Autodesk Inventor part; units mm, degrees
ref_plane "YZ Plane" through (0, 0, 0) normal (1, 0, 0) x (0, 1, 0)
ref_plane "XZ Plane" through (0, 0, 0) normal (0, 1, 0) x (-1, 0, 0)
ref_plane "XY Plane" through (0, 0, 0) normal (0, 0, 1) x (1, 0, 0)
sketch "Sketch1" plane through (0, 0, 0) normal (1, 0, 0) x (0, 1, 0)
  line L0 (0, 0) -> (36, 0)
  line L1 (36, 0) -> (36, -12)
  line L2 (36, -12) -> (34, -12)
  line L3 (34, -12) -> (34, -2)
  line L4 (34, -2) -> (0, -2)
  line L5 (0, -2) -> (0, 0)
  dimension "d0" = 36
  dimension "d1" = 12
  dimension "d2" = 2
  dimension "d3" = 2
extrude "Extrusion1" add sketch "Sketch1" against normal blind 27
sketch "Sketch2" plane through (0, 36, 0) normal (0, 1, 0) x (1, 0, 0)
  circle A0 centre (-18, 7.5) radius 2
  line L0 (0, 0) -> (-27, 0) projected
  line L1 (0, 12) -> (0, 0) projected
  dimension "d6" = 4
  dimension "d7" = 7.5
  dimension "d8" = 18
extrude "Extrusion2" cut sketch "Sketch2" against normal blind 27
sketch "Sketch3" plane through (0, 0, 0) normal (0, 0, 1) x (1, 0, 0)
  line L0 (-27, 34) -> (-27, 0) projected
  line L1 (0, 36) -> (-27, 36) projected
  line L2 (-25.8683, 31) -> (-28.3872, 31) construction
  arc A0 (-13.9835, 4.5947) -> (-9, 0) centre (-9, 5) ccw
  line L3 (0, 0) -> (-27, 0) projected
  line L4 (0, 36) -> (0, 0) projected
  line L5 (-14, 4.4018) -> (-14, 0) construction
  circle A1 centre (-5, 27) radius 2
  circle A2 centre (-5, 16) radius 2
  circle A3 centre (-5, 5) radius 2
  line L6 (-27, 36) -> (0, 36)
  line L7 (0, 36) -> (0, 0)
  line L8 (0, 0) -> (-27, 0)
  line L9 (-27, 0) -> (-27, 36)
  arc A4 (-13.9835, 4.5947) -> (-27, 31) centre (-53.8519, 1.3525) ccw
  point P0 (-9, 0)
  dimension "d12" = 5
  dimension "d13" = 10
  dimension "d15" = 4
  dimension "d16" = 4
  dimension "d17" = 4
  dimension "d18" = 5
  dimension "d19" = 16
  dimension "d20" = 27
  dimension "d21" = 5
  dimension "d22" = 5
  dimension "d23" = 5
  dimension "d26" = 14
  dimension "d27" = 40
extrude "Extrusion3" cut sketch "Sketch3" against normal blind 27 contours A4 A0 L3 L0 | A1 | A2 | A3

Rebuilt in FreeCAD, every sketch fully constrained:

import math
import FreeCAD as App
import Part
import Sketcher

V = App.Vector

doc = App.newDocument("Part")
body = doc.addObject("PartDesign::Body", "Body")

# Sketch on YZ plane
sketch1 = body.newObject("Sketcher::SketchObject", "Sketch")
sketch1.AttachmentSupport = (doc.getObject("YZ_Plane"), [""])
sketch1.MapMode = "FlatFace"
sketch1.addGeometry([
    Part.LineSegment(V(36, 0, 0), V(0, 0, 0)),  # 0
    Part.LineSegment(V(0, 0, 0), V(0, -2, 0)),  # 1
    Part.LineSegment(V(0, -2, 0), V(34, -2, 0)),  # 2
    Part.LineSegment(V(34, -2, 0), V(34, -12, 0)),  # 3
    Part.LineSegment(V(34, -12, 0), V(36, -12, 0)),  # 4
    Part.LineSegment(V(36, -12, 0), V(36, 0, 0)),  # 5
], False)
sketch1.addConstraint([
    Sketcher.Constraint("Coincident", 0, 2, 1, 1),
    Sketcher.Constraint("Coincident", 1, 2, 2, 1),
    Sketcher.Constraint("Coincident", 2, 2, 3, 1),
    Sketcher.Constraint("Coincident", 3, 2, 4, 1),
    Sketcher.Constraint("Coincident", 4, 2, 5, 1),
    Sketcher.Constraint("Coincident", 5, 2, 0, 1),
    Sketcher.Constraint("Horizontal", 0),
    Sketcher.Constraint("Vertical", 1),
    Sketcher.Constraint("Horizontal", 2),
    Sketcher.Constraint("Vertical", 3),
    Sketcher.Constraint("Horizontal", 4),
    Sketcher.Constraint("Vertical", 5),
    Sketcher.Constraint("Coincident", 0, 2, -1, 1),
    Sketcher.Constraint("Equal", 4, 1),
    Sketcher.Constraint("DistanceX", 0, 2, 0, 1, 36.0),
    Sketcher.Constraint("DistanceX", 4, 1, 4, 2, 2.0),
    Sketcher.Constraint("DistanceY", 5, 1, 5, 2, 12.0),
])
pad1 = body.newObject("PartDesign::Pad", "Pad")
pad1.Profile = sketch1
pad1.Length = 27
pad1.Reversed = True

# Sketch on XZ plane
sketch2 = body.newObject("Sketcher::SketchObject", "Sketch001")
sketch2.AttachmentSupport = (doc.getObject("XZ_Plane"), [""])
sketch2.MapMode = "FlatFace"
sketch2.AttachmentOffset = App.Placement(V(0, 0, -36), App.Rotation())
sketch2.addGeometry(Part.Circle(V(-18, -7.5, 0), V(0, 0, 1), 2), False)
sketch2.addConstraint([
    Sketcher.Constraint("Diameter", 0, 4.0),
    Sketcher.Constraint("DistanceX", 0, 3, -1, 1, 18.0),
    Sketcher.Constraint("DistanceY", 0, 3, -1, 1, 7.5),
])
pocket1 = body.newObject("PartDesign::Pocket", "Pocket")
pocket1.Profile = sketch2
pocket1.Length = 27
pocket1.Reversed = True

# Sketch on XY plane
sketch3 = body.newObject("Sketcher::SketchObject", "Sketch002")
sketch3.AttachmentSupport = (doc.getObject("XY_Plane"), [""])
sketch3.MapMode = "FlatFace"
sketch3.addGeometry([
    Part.ArcOfCircle(Part.Circle(V(-53.9, 1.4, 0), V(0, 0, 1), 40), math.radians(5), math.radians(48)),  # 0
    Part.LineSegment(V(-27, 31, 0), V(-27, 0, 0)),  # 1
    Part.LineSegment(V(-27, 0, 0), V(-9, 0, 0)),  # 2
    Part.ArcOfCircle(Part.Circle(V(-9, 5, 0), V(0, 0, 1), 5), math.radians(-175), math.radians(-90)),  # 3
    Part.Circle(V(-5, 27, 0), V(0, 0, 1), 2),  # 4
    Part.Circle(V(-5, 16, 0), V(0, 0, 1), 2),  # 5
    Part.Circle(V(-5, 5, 0), V(0, 0, 1), 2),  # 6
], False)
sketch3.addConstraint([
    Sketcher.Constraint("Coincident", 0, 2, 1, 1),
    Sketcher.Constraint("Coincident", 1, 2, 2, 1),
    Sketcher.Constraint("Tangent", 2, 2, 3, 2),
    Sketcher.Constraint("Tangent", 3, 1, 0, 1),
    Sketcher.Constraint("Vertical", 1),
    Sketcher.Constraint("Horizontal", 2),
    Sketcher.Constraint("Equal", 4, 5),
    Sketcher.Constraint("Equal", 5, 6),
    Sketcher.Constraint("PointOnObject", 1, 2, -1),
    Sketcher.Constraint("Horizontal", 3, 3, 6, 3),
    Sketcher.Constraint("Vertical", 4, 3, 5, 3),
    Sketcher.Constraint("Vertical", 5, 3, 6, 3),
    Sketcher.Constraint("Diameter", 4, 4.0),
    Sketcher.Constraint("Radius", 0, 40.0),
    Sketcher.Constraint("Radius", 3, 5.0),
    Sketcher.Constraint("DistanceX", 4, 3, -1, 1, 5.0),
    Sketcher.Constraint("DistanceY", -1, 1, 4, 3, 27.0),
    Sketcher.Constraint("DistanceY", -1, 1, 5, 3, 16.0),
    Sketcher.Constraint("DistanceX", 0, 2, -1, 1, 27.0),
    Sketcher.Constraint("DistanceX", 3, 3, 4, 3, 4.0),
    Sketcher.Constraint("DistanceY", 4, 3, 0, 2, 4.0),
])
pocket2 = body.newObject("PartDesign::Pocket", "Pocket001")
pocket2.Profile = sketch3
pocket2.Length = 27

doc.recompute()
